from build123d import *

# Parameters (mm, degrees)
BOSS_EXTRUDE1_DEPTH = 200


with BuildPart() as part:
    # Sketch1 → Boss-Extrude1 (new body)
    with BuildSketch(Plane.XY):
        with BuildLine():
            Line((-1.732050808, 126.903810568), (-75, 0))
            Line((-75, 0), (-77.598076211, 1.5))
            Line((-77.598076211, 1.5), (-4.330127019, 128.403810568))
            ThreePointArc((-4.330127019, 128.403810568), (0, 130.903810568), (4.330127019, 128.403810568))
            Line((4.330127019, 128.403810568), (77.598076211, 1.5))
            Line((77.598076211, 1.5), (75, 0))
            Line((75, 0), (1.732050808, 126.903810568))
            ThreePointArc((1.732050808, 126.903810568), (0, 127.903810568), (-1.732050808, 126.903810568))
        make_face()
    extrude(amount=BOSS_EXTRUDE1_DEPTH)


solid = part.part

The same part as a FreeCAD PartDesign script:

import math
import FreeCAD as App
import Part
import Sketcher

V = App.Vector
Q = App.Units.Quantity

doc = App.newDocument("Part")
body = doc.addObject("PartDesign::Body", "Body")

# Sketch on XY plane
sketch1 = body.newObject("Sketcher::SketchObject", "Sketch")
sketch1.AttachmentSupport = (doc.getObject("XY_Plane"), [""])
sketch1.MapMode = "FlatFace"
sketch1.addGeometry([
    Part.LineSegment(V(-75, 0, 0), V(-1.7, 126.9, 0)),  # 0
    Part.ArcOfCircle(Part.Circle(V(0, 125.9, 0), V(0, 0, 1), 2), math.radians(30), math.radians(150)),  # 1
    Part.LineSegment(V(1.7, 126.9, 0), V(75, 0, 0)),  # 2
    Part.LineSegment(V(75, 0, 0), V(77.6, 1.5, 0)),  # 3
    Part.LineSegment(V(77.6, 1.5, 0), V(4.3, 128.4, 0)),  # 4
    Part.ArcOfCircle(Part.Circle(V(0, 125.9, 0), V(0, 0, 1), 5), math.radians(30), math.radians(150)),  # 5
    Part.LineSegment(V(-4.3, 128.4, 0), V(-77.6, 1.5, 0)),  # 6
    Part.LineSegment(V(-77.6, 1.5, 0), V(-75, 0, 0)),  # 7
], False)
sketch1.addConstraint([
    Sketcher.Constraint("Tangent", 0, 2, 1, 2),
    Sketcher.Constraint("Tangent", 1, 1, 2, 1),
    Sketcher.Constraint("Coincident", 2, 2, 3, 1),
    Sketcher.Constraint("Coincident", 3, 2, 4, 1),
    Sketcher.Constraint("Tangent", 4, 2, 5, 1),
    Sketcher.Constraint("Tangent", 5, 2, 6, 1),
    Sketcher.Constraint("Coincident", 6, 2, 7, 1),
    Sketcher.Constraint("Coincident", 7, 2, 0, 1),
    Sketcher.Constraint("Coincident", 5, 3, 1, 3),
    Sketcher.Constraint("Symmetric", 2, 2, 7, 2, -1, 1),
    Sketcher.Constraint("Symmetric", 0, 2, 1, 1, -2),
    Sketcher.Constraint("Symmetric", 3, 2, 6, 2, -2),
    Sketcher.Constraint("Perpendicular", 2, 3),
    Sketcher.Constraint("Perpendicular", 3, 4),
    Sketcher.Constraint("Radius", 1, 2.0),
    Sketcher.Constraint("Radius", 5, 5.0),
    Sketcher.Constraint("Angle", 0, Q("60 deg")),
    Sketcher.Constraint("DistanceX", -1, 1, 2, 2, 75.0),
])
pad1 = body.newObject("PartDesign::Pad", "Pad")
pad1.Profile = sketch1
pad1.Length = 200

doc.recompute()
